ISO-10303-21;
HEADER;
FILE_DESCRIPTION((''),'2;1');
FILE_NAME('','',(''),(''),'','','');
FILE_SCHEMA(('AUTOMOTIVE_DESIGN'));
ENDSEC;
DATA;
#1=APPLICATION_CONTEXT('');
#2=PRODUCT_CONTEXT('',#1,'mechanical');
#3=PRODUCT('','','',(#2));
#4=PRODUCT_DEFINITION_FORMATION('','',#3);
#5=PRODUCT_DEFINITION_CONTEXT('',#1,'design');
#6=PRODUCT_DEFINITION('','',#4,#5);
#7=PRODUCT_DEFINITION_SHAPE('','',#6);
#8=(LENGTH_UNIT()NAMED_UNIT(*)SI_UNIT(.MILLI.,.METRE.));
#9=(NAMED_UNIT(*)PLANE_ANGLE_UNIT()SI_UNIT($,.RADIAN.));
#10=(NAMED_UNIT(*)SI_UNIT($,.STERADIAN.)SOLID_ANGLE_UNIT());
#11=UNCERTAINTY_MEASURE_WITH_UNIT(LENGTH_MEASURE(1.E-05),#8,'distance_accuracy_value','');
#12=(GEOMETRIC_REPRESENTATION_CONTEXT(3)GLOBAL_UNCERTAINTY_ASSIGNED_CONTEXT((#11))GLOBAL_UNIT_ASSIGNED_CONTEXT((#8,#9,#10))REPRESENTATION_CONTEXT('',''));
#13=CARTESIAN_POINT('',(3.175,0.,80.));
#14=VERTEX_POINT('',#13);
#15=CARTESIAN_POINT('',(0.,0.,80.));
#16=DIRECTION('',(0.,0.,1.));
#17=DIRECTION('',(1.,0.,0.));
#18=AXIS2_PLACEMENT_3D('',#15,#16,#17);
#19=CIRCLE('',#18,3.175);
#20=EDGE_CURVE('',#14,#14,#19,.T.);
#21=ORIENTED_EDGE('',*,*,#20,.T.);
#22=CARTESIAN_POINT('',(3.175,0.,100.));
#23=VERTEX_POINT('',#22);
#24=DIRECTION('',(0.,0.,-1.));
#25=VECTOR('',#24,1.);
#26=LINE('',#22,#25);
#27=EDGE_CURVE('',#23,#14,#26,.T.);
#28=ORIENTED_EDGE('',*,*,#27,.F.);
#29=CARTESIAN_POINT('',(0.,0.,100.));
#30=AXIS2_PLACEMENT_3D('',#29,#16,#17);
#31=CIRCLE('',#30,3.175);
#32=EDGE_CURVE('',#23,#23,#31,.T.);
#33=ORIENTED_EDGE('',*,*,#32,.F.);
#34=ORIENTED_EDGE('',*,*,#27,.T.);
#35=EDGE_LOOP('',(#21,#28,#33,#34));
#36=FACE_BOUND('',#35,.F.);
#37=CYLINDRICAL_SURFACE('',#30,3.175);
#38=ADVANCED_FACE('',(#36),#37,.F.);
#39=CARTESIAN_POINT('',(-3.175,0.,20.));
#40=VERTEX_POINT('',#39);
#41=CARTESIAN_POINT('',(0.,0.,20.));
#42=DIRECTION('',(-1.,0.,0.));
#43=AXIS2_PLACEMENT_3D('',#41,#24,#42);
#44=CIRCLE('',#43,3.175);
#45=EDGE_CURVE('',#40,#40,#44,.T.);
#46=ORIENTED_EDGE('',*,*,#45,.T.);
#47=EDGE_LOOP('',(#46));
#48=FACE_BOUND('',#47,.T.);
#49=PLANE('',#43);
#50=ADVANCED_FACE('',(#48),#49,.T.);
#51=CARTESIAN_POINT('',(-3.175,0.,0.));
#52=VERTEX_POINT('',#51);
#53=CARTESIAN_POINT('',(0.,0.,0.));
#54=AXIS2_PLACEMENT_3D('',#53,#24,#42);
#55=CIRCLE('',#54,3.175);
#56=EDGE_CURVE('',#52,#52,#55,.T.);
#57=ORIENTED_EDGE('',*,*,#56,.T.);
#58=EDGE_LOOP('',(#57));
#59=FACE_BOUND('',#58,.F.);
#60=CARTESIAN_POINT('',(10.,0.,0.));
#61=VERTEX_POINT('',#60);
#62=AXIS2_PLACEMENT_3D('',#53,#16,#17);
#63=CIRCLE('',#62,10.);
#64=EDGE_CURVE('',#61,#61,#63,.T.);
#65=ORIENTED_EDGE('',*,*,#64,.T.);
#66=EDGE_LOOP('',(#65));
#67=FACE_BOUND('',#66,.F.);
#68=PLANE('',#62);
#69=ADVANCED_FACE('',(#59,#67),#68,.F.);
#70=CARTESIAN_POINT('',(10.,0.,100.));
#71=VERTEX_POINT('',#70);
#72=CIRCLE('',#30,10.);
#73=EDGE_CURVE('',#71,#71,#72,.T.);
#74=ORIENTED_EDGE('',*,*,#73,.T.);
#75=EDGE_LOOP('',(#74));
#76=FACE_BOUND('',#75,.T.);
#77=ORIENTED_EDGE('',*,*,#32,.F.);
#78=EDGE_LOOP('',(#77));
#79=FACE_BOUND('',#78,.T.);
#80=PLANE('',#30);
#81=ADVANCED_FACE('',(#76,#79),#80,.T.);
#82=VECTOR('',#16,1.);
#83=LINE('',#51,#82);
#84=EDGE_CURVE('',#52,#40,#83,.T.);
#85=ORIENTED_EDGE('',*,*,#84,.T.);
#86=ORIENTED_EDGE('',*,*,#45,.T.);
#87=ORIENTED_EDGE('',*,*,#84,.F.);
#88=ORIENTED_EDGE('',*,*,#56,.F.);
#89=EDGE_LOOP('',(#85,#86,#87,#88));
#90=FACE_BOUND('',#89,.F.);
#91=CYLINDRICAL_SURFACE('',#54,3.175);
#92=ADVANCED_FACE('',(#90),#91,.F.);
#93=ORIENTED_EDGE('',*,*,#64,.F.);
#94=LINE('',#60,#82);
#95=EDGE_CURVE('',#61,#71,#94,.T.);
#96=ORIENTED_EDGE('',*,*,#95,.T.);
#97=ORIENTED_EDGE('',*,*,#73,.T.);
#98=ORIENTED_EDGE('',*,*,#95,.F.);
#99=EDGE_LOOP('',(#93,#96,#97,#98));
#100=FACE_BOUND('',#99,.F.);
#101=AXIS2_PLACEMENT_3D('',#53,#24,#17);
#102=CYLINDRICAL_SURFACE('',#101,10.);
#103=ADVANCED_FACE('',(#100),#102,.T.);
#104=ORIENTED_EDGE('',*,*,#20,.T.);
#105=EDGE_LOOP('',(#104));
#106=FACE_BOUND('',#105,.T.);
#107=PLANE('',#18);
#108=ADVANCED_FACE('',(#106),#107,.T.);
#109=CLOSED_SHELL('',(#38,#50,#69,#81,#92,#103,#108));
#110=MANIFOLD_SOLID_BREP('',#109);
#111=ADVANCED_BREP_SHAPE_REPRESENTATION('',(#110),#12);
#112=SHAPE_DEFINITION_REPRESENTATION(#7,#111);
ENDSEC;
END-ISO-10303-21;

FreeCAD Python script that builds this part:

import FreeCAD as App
import Part
import Sketcher
Q = App.Units.Quantity

doc = App.newDocument("Part")
params = doc.addObject("Spreadsheet::Sheet", "Params")
for row, (alias, value) in enumerate([
    ("pad1_length", "3.9370079 in"),
    ("sketch2_diameter", "0.25 in"),
    ("pocket1_length", "0.7874016 in"),
    ("sketch3_diameter", "0.25 in"),
    ("pocket2_length", "0.7874016 in"),
], start=1):
    params.set(f"A{row}", alias)
    params.set(f"B{row}", "=" + value)
    params.setAlias(f"B{row}", alias)

body = doc.addObject("PartDesign::Body", "Body")

# Sketch on XY plane
sketch1 = body.newObject("Sketcher::SketchObject", "Sketch")
sketch1.AttachmentSupport = (doc.getObject("XY_Plane"), [""])
sketch1.MapMode = "FlatFace"
sketch1.addGeometry(Part.Circle(App.Vector(0, 0, 0), App.Vector(0, 0, 1), 10), False)
sketch1.addConstraint([
    Sketcher.Constraint("Coincident", 0, 3, -1, 1),
    Sketcher.Constraint("Diameter", 0, Q("0.7874 in")),
])
pad1 = body.newObject("PartDesign::Pad", "Pad")
pad1.Profile = sketch1
pad1.setExpression("Length", "Params.pad1_length")

# Sketch on XY plane
sketch2 = body.newObject("Sketcher::SketchObject", "Sketch001")
sketch2.AttachmentSupport = (doc.getObject("XY_Plane"), [""])
sketch2.MapMode = "FlatFace"
sketch2.AttachmentOffset = App.Placement(App.Vector(0, 0, 3.9370079 * 25.4), App.Rotation())
sketch2.addGeometry(Part.Circle(App.Vector(0, 0, 0), App.Vector(0, 0, 1), 3.2), False)
sketch2.addConstraint([
    Sketcher.Constraint("Coincident", 0, 3, -1, 1),
    Sketcher.Constraint("Diameter", 0, Q("0.25 in")),
])
sketch2.setExpression("Constraints[1]", "Params.sketch2_diameter")
pocket1 = body.newObject("PartDesign::Pocket", "Pocket")
pocket1.Profile = sketch2
pocket1.setExpression("Length", "Params.pocket1_length")

# Sketch on XY plane
sketch3 = body.newObject("Sketcher::SketchObject", "Sketch002")
sketch3.AttachmentSupport = (doc.getObject("XY_Plane"), [""])
sketch3.MapMode = "FlatFace"
sketch3.addGeometry(Part.Circle(App.Vector(0, 0, 0), App.Vector(0, 0, 1), 3.2), False)
sketch3.addConstraint([
    Sketcher.Constraint("Coincident", 0, 3, -1, 1),
    Sketcher.Constraint("Diameter", 0, Q("0.25 in")),
])
sketch3.setExpression("Constraints[1]", "Params.sketch3_diameter")
pocket2 = body.newObject("PartDesign::Pocket", "Pocket001")
pocket2.Profile = sketch3
pocket2.setExpression("Length", "Params.pocket2_length")
pocket2.Reversed = True

doc.recompute()
